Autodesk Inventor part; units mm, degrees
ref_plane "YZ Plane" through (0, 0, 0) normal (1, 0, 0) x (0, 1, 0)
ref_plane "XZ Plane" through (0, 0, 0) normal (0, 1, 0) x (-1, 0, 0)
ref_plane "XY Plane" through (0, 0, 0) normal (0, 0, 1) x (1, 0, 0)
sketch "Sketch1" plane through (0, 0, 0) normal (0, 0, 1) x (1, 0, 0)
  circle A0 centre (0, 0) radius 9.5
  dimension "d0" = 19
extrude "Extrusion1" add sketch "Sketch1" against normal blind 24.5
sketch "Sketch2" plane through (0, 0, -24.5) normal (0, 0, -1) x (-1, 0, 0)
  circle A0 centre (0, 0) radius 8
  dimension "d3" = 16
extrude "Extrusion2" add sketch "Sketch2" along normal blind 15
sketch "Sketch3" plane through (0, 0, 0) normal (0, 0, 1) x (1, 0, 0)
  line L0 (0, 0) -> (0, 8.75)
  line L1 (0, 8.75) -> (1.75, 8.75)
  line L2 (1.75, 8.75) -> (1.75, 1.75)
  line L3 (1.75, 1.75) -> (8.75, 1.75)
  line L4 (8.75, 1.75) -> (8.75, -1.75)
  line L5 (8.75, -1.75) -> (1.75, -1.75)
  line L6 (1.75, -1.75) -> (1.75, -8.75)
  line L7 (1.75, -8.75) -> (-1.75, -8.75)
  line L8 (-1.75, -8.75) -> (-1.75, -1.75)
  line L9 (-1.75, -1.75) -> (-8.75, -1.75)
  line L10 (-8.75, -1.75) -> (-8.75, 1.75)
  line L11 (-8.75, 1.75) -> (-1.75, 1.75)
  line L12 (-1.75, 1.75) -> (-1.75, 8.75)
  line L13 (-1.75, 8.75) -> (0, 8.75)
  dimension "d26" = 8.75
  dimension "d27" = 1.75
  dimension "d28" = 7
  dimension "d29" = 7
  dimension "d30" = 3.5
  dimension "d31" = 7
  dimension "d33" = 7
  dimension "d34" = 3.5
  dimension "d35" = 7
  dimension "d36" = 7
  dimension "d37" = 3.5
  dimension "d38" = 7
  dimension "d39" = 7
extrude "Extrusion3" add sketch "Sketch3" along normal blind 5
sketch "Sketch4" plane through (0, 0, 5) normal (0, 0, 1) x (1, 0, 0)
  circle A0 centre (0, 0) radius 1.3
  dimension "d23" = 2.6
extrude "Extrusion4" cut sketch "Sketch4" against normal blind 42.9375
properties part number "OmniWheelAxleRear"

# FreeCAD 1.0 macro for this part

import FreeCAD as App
import Part
import Sketcher

V = App.Vector

doc = App.newDocument("Part")
body = doc.addObject("PartDesign::Body", "Body")

# Sketch on XY plane
sketch1 = body.newObject("Sketcher::SketchObject", "Sketch")
sketch1.AttachmentSupport = (doc.getObject("XY_Plane"), [""])
sketch1.MapMode = "FlatFace"
sketch1.addGeometry(Part.Circle(V(0, 0, 0), V(0, 0, 1), 9.5), False)
sketch1.addConstraint([
    Sketcher.Constraint("Coincident", 0, 3, -1, 1),
    Sketcher.Constraint("Diameter", 0, 19.0),
])
pad1 = body.newObject("PartDesign::Pad", "Pad")
pad1.Profile = sketch1
pad1.Length = 24.5
pad1.Reversed = True

# Sketch on XY plane
sketch2 = body.newObject("Sketcher::SketchObject", "Sketch001")
sketch2.AttachmentSupport = (doc.getObject("XY_Plane"), [""])
sketch2.MapMode = "FlatFace"
sketch2.AttachmentOffset = App.Placement(V(0, 0, -24.5), App.Rotation())
sketch2.addGeometry(Part.Circle(V(0, 0, 0), V(0, 0, 1), 8), False)
sketch2.addConstraint([
    Sketcher.Constraint("Coincident", 0, 3, -1, 1),
    Sketcher.Constraint("Diameter", 0, 16.0),
])
pad2 = body.newObject("PartDesign::Pad", "Pad001")
pad2.Profile = sketch2
pad2.Length = 15
pad2.Reversed = True

# Sketch on XY plane
sketch3 = body.newObject("Sketcher::SketchObject", "Sketch002")
sketch3.AttachmentSupport = (doc.getObject("XY_Plane"), [""])
sketch3.MapMode = "FlatFace"
sketch3.addGeometry([
    Part.LineSegment(V(1.75, 8.75, 0), V(-1.75, 8.75, 0)),  # 0
    Part.LineSegment(V(-1.75, 8.75, 0), V(-1.75, 1.75, 0)),  # 1
    Part.LineSegment(V(-1.75, 1.75, 0), V(-8.75, 1.75, 0)),  # 2
    Part.LineSegment(V(-8.75, 1.75, 0), V(-8.75, -1.75, 0)),  # 3
    Part.LineSegment(V(-8.75, -1.75, 0), V(-1.75, -1.75, 0)),  # 4
    Part.LineSegment(V(-1.75, -1.75, 0), V(-1.75, -8.75, 0)),  # 5
    Part.LineSegment(V(-1.75, -8.75, 0), V(1.75, -8.75, 0)),  # 6
    Part.LineSegment(V(1.75, -8.75, 0), V(1.75, -1.75, 0)),  # 7
    Part.LineSegment(V(1.75, -1.75, 0), V(8.75, -1.75, 0)),  # 8
    Part.LineSegment(V(8.75, -1.75, 0), V(8.75, 1.75, 0)),  # 9
    Part.LineSegment(V(8.75, 1.75, 0), V(1.75, 1.75, 0)),  # 10
    Part.LineSegment(V(1.75, 1.75, 0), V(1.75, 8.75, 0)),  # 11
], False)
sketch3.addConstraint([
    Sketcher.Constraint("Coincident", 0, 2, 1, 1),
    Sketcher.Constraint("Coincident", 1, 2, 2, 1),
    Sketcher.Constraint("Coincident", 2, 2, 3, 1),
    Sketcher.Constraint("Coincident", 3, 2, 4, 1),
    Sketcher.Constraint("Coincident", 4, 2, 5, 1),
    Sketcher.Constraint("Coincident", 5, 2, 6, 1),
    Sketcher.Constraint("Coincident", 6, 2, 7, 1),
    Sketcher.Constraint("Coincident", 7, 2, 8, 1),
    Sketcher.Constraint("Coincident", 8, 2, 9, 1),
    Sketcher.Constraint("Coincident", 9, 2, 10, 1),
    Sketcher.Constraint("Coincident", 10, 2, 11, 1),
    Sketcher.Constraint("Coincident", 11, 2, 0, 1),
    Sketcher.Constraint("Horizontal", 0),
    Sketcher.Constraint("Vertical", 1),
    Sketcher.Constraint("Horizontal", 2),
    Sketcher.Constraint("Vertical", 3),
    Sketcher.Constraint("Horizontal", 4),
    Sketcher.Constraint("Vertical", 5),
    Sketcher.Constraint("Horizontal", 6),
    Sketcher.Constraint("Vertical", 7),
    Sketcher.Constraint("Horizontal", 8),
    Sketcher.Constraint("Vertical", 9),
    Sketcher.Constraint("Horizontal", 10),
    Sketcher.Constraint("Vertical", 11),
    Sketcher.Constraint("Symmetric", 0, 2, 6, 2, -1, 1),
    Sketcher.Constraint("Symmetric", 2, 2, 8, 2, -1, 1),
    Sketcher.Constraint("Symmetric", 4, 2, 10, 2, -1, 1),
    Sketcher.Constraint("Symmetric", 4, 2, 7, 2, -2),
    Sketcher.Constraint("Equal", 10, 1),
    Sketcher.Constraint("Equal", 6, 3),
    Sketcher.Constraint("DistanceX", 2, 2, 2, 1, 7.0),
    Sketcher.Constraint("DistanceX", 0, 2, 0, 1, 3.5),
])
pad3 = body.newObject("PartDesign::Pad", "Pad002")
pad3.Profile = sketch3
pad3.Length = 5

# Sketch on XY plane
sketch4 = body.newObject("Sketcher::SketchObject", "Sketch003")
sketch4.AttachmentSupport = (doc.getObject("XY_Plane"), [""])
sketch4.MapMode = "FlatFace"
sketch4.AttachmentOffset = App.Placement(V(0, 0, 5), App.Rotation())
sketch4.addGeometry(Part.Circle(V(0, 0, 0), V(0, 0, 1), 1.3), False)
sketch4.addConstraint([
    Sketcher.Constraint("Coincident", 0, 3, -1, 1),
    Sketcher.Constraint("Diameter", 0, 2.6),
])
pocket1 = body.newObject("PartDesign::Pocket", "Pocket")
pocket1.Profile = sketch4
pocket1.Length = 42.9375

doc.recompute()
